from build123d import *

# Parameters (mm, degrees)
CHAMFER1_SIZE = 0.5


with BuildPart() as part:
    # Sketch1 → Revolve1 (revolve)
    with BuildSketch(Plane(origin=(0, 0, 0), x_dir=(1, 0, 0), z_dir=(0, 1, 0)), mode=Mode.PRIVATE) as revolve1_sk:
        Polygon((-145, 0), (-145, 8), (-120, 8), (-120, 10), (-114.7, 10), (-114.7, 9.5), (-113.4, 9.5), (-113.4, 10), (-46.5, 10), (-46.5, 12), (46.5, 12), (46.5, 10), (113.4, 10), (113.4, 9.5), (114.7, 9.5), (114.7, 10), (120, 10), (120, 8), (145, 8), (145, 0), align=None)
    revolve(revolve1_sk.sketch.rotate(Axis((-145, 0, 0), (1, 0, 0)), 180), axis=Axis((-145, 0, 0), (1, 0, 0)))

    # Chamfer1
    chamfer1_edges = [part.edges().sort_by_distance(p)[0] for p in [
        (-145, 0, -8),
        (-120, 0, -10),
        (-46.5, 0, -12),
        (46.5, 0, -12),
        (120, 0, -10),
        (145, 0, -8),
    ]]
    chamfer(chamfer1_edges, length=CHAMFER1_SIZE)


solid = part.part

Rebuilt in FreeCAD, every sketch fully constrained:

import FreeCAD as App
import Part
import Sketcher
from FreeCAD import Vector
Q = App.Units.Quantity


def edges_at(feature, points):
    """Names of the edges that pass closest to the given points."""
    edges = feature.Shape.Edges
    near = lambda p: min(range(len(edges)), key=lambda i: edges[i].distToShape(Part.Vertex(*p))[0])
    return sorted({f"Edge{near(p) + 1}" for p in points})


def add_polygon(sketch, points):
    """Adds a closed chain of lines whose ends are joined by coincident constraints."""
    first, n = sketch.GeometryCount, len(points)
    for a, b in zip(points, points[1:] + points[:1]):
        sketch.addGeometry(Part.LineSegment(App.Vector(*a, 0), App.Vector(*b, 0)), False)
    for i in range(n):
        sketch.addConstraint(Sketcher.Constraint("Coincident", first + i, 2, first + (i + 1) % n, 1))

doc = App.newDocument("Part")
body = doc.addObject("PartDesign::Body", "Body")

# Sketch on XZ plane
sketch1 = body.newObject("Sketcher::SketchObject", "Sketch")
sketch1.AttachmentSupport = (doc.getObject("XZ_Plane"), [""])
sketch1.MapMode = "FlatFace"
add_polygon(sketch1, [(-145, -8), (-145, 0), (145, 0), (145, -8), (120, -8), (120, -10), (114.7, -10), (114.7, -9.5), (113.4, -9.5), (113.4, -10), (46.5, -10), (46.5, -12), (-46.5, -12), (-46.5, -10), (-113.4, -10), (-113.4, -9.5), (-114.7, -9.5), (-114.7, -10), (-120, -10), (-120, -8)])  # lines 0-19
sketch1.addConstraint(Sketcher.Constraint("Vertical", 0))
sketch1.addConstraint(Sketcher.Constraint("Horizontal", 1))
sketch1.addConstraint(Sketcher.Constraint("Vertical", 2))
sketch1.addConstraint(Sketcher.Constraint("Horizontal", 3))
sketch1.addConstraint(Sketcher.Constraint("Vertical", 4))
sketch1.addConstraint(Sketcher.Constraint("Horizontal", 5))
sketch1.addConstraint(Sketcher.Constraint("Vertical", 6))
sketch1.addConstraint(Sketcher.Constraint("Horizontal", 7))
sketch1.addConstraint(Sketcher.Constraint("Vertical", 8))
sketch1.addConstraint(Sketcher.Constraint("Horizontal", 9))
sketch1.addConstraint(Sketcher.Constraint("Vertical", 10))
sketch1.addConstraint(Sketcher.Constraint("Horizontal", 11))
sketch1.addConstraint(Sketcher.Constraint("Vertical", 12))
sketch1.addConstraint(Sketcher.Constraint("Horizontal", 13))
sketch1.addConstraint(Sketcher.Constraint("Vertical", 14))
sketch1.addConstraint(Sketcher.Constraint("Horizontal", 15))
sketch1.addConstraint(Sketcher.Constraint("Vertical", 16))
sketch1.addConstraint(Sketcher.Constraint("Horizontal", 17))
sketch1.addConstraint(Sketcher.Constraint("Vertical", 18))
sketch1.addConstraint(Sketcher.Constraint("Horizontal", 19))
sketch1.addConstraint(Sketcher.Constraint("Symmetric", 0, 2, 1, 2, -1, 1))
sketch1.addConstraint(Sketcher.Constraint("Symmetric", 9, 2, 12, 2, -2))
sketch1.addConstraint(Sketcher.Constraint("Symmetric", 7, 2, 14, 2, -2))
sketch1.addConstraint(Sketcher.Constraint("Symmetric", 5, 2, 16, 2, -2))
sketch1.addConstraint(Sketcher.Constraint("Symmetric", 3, 2, 18, 2, -2))
sketch1.addConstraint(Sketcher.Constraint("Horizontal", 5, 2, 8, 2))
sketch1.addConstraint(Sketcher.Constraint("Equal", 4, 10))
sketch1.addConstraint(Sketcher.Constraint("DistanceX", 1, 1, 1, 2, Q("290 mm")))
sketch1.addConstraint(Sketcher.Constraint("DistanceX", 3, 2, 3, 1, Q("25 mm")))
sketch1.addConstraint(Sketcher.Constraint("DistanceX", 11, 2, 11, 1, Q("93 mm")))
sketch1.addConstraint(Sketcher.Constraint("DistanceY", 0, 1, 0, 2, Q("8 mm")))
sketch1.addConstraint(Sketcher.Constraint("DistanceY", 4, 2, 4, 1, Q("2 mm")))
sketch1.addConstraint(Sketcher.Constraint("DistanceX", 5, 2, 5, 1, Q("5.3 mm")))
sketch1.addConstraint(Sketcher.Constraint("DistanceX", 7, 2, 7, 1, Q("1.3 mm")))
sketch1.addConstraint(Sketcher.Constraint("DistanceY", 6, 1, 6, 2, Q("0.5 mm")))
revolution = body.newObject("PartDesign::Revolution", "Revolution")
revolution.Profile = sketch1
revolution.ReferenceAxis = (sketch1, ["H_Axis"])
revolution.Angle = 360
doc.recompute()

chamfer = body.newObject("PartDesign::Chamfer", "Chamfer")
chamfer.Base = (revolution, edges_at(revolution, [
    (-145, 0, -8),
    (-120, 0, -10),
    (-46.5, 0, -12),
    (46.5, 0, -12),
    (120, 0, -10),
    (145, 0, -8),
]))
chamfer.Size = 0.5

doc.recompute()
